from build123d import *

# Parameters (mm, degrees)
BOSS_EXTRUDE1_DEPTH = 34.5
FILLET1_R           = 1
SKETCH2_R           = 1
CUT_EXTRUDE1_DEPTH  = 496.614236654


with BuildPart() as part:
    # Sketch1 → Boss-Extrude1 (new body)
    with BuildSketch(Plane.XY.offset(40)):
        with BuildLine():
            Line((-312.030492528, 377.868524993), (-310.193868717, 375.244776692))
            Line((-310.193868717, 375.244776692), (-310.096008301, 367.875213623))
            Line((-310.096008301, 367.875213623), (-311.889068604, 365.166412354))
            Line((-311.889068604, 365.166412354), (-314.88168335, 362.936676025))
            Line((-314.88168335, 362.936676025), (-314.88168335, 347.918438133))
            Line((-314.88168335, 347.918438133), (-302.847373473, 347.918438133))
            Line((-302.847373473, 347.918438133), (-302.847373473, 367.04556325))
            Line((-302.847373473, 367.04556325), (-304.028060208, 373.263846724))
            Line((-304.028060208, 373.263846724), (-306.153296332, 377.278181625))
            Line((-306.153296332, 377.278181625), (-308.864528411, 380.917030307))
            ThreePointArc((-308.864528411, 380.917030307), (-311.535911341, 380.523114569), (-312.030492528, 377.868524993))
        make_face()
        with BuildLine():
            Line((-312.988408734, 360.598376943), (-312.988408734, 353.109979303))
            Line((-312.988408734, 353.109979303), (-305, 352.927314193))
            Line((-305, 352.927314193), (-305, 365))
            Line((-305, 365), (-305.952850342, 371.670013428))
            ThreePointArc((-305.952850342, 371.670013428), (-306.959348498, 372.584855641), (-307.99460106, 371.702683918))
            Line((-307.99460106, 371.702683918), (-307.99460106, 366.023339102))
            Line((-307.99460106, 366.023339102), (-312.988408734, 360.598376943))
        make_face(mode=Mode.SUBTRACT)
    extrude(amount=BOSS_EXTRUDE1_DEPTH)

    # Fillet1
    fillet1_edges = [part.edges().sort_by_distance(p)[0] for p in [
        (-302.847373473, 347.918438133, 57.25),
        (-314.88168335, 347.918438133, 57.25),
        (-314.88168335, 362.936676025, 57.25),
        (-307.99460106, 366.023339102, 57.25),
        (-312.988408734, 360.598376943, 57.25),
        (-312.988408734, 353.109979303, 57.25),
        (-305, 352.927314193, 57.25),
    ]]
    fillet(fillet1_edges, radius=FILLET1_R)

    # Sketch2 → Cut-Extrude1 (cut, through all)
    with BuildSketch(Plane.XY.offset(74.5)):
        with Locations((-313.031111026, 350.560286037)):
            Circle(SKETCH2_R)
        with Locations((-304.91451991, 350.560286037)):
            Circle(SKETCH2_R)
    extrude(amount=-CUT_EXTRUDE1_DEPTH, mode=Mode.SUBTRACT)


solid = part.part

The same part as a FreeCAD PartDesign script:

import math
import FreeCAD as App
import Part
import Sketcher

V = App.Vector
Q = App.Units.Quantity


def edges_at(feature, points):
    """Names of the edges that pass closest to the given points."""
    edges = feature.Shape.Edges
    near = lambda p: min(range(len(edges)), key=lambda i: edges[i].distToShape(Part.Vertex(*p))[0])
    return sorted({f"Edge{near(p) + 1}" for p in points})

doc = App.newDocument("Part")
body = doc.addObject("PartDesign::Body", "Body")

sketch1 = body.newObject("Sketcher::SketchObject", "Sketch")
sketch1.AttachmentSupport = (doc.getObject("XY_Plane"), [""])
sketch1.MapMode = "FlatFace"
sketch1.AttachmentOffset = App.Placement(V(0, 0, 40), App.Rotation())
sketch1.addGeometry(Part.LineSegment(V(-312.030493, 377.868525, 0), V(-310.193869, 375.244777, 0)), False)
sketch1.addGeometry(Part.LineSegment(V(-310.193869, 375.244777, 0), V(-310.096008, 367.875214, 0)), False)
sketch1.addGeometry(Part.LineSegment(V(-310.096008, 367.875214, 0), V(-311.889069, 365.166412, 0)), False)
sketch1.addGeometry(Part.LineSegment(V(-311.889069, 365.166412, 0), V(-314.881683, 362.936676, 0)), False)
sketch1.addGeometry(Part.LineSegment(V(-314.881683, 362.936676, 0), V(-314.881683, 347.918438, 0)), False)
sketch1.addGeometry(Part.LineSegment(V(-314.881683, 347.918438, 0), V(-302.847373, 347.918438, 0)), False)
sketch1.addGeometry(Part.LineSegment(V(-302.847373, 347.918438, 0), V(-302.847373, 367.045563, 0)), False)
sketch1.addGeometry(Part.LineSegment(V(-302.847373, 367.045563, 0), V(-304.02806, 373.263847, 0)), False)
sketch1.addGeometry(Part.LineSegment(V(-304.02806, 373.263847, 0), V(-306.153296, 377.278182, 0)), False)
sketch1.addGeometry(Part.LineSegment(V(-306.153296, 377.278182, 0), V(-308.864528, 380.91703, 0)), False)
sketch1.addGeometry(Part.ArcOfCircle(Part.Circle(V(-309.92439, 378.849501, 0), V(0, 0, 1), 2.323356), math.radians(62.85931), math.radians(204.975069)), False)
sketch1.addGeometry(Part.LineSegment(V(-312.988409, 353.109979, 0), V(-312.988409, 360.598377, 0)), False)
sketch1.addGeometry(Part.LineSegment(V(-312.988409, 360.598377, 0), V(-307.994601, 366.023339, 0)), False)
sketch1.addGeometry(Part.LineSegment(V(-307.994601, 366.023339, 0), V(-307.994601, 371.702684, 0)), False)
sketch1.addGeometry(Part.ArcOfCircle(Part.Circle(V(-306.975817, 371.555648, 0), V(0, 0, 1), 1.02934), math.radians(6.379078), math.radians(171.787475)), False)
sketch1.addGeometry(Part.LineSegment(V(-305.95285, 371.670013, 0), V(-305, 365, 0)), False)
sketch1.addGeometry(Part.LineSegment(V(-305, 365, 0), V(-305, 352.927314, 0)), False)
sketch1.addGeometry(Part.LineSegment(V(-305, 352.927314, 0), V(-312.988409, 353.109979, 0)), False)
sketch1.addConstraint(Sketcher.Constraint("Coincident", 0, 2, 1, 1))
sketch1.addConstraint(Sketcher.Constraint("Coincident", 1, 2, 2, 1))
sketch1.addConstraint(Sketcher.Constraint("Coincident", 2, 2, 3, 1))
sketch1.addConstraint(Sketcher.Constraint("Coincident", 3, 2, 4, 1))
sketch1.addConstraint(Sketcher.Constraint("Coincident", 4, 2, 5, 1))
sketch1.addConstraint(Sketcher.Constraint("Coincident", 5, 2, 6, 1))
sketch1.addConstraint(Sketcher.Constraint("Coincident", 6, 2, 7, 1))
sketch1.addConstraint(Sketcher.Constraint("Coincident", 7, 2, 8, 1))
sketch1.addConstraint(Sketcher.Constraint("Coincident", 8, 2, 9, 1))
sketch1.addConstraint(Sketcher.Constraint("Coincident", 9, 2, 10, 1))
sketch1.addConstraint(Sketcher.Constraint("Coincident", 10, 2, 0, 1))
sketch1.addConstraint(Sketcher.Constraint("Coincident", 11, 2, 12, 1))
sketch1.addConstraint(Sketcher.Constraint("Coincident", 12, 2, 13, 1))
sketch1.addConstraint(Sketcher.Constraint("Coincident", 13, 2, 14, 2))
sketch1.addConstraint(Sketcher.Constraint("Coincident", 14, 1, 15, 1))
sketch1.addConstraint(Sketcher.Constraint("Coincident", 15, 2, 16, 1))
sketch1.addConstraint(Sketcher.Constraint("Coincident", 16, 2, 17, 1))
sketch1.addConstraint(Sketcher.Constraint("Coincident", 17, 2, 11, 1))
sketch1.addConstraint(Sketcher.Constraint("Vertical", 4))
sketch1.addConstraint(Sketcher.Constraint("Horizontal", 5))
sketch1.addConstraint(Sketcher.Constraint("Vertical", 6))
sketch1.addConstraint(Sketcher.Constraint("Vertical", 11))
sketch1.addConstraint(Sketcher.Constraint("Vertical", 13))
sketch1.addConstraint(Sketcher.Constraint("Vertical", 16))
sketch1.addConstraint(Sketcher.Constraint("Perpendicular", 3, 9))
sketch1.addConstraint(Sketcher.Constraint("DistanceX", 15, 2, -1, 1, Q("305 mm")))
sketch1.addConstraint(Sketcher.Constraint("DistanceY", -1, 1, 15, 2, Q("365 mm")))
sketch1.addConstraint(Sketcher.Constraint("Radius", 14, Q("1.02934 mm")))
sketch1.addConstraint(Sketcher.Constraint("Radius", 10, Q("2.323356 mm")))
sketch1.addConstraint(Sketcher.Constraint("DistanceX", 5, 1, 5, 2, Q("12.03431 mm")))
sketch1.addConstraint(Sketcher.Constraint("DistanceY", -1, 1, 10, 3, Q("378.849501 mm")))
sketch1.addConstraint(Sketcher.Constraint("DistanceX", 12, 2, -1, 1, Q("307.994601 mm")))
sketch1.addConstraint(Sketcher.Constraint("DistanceY", 2, 2, 1, 2, Q("2.708801 mm")))
sketch1.addConstraint(Sketcher.Constraint("DistanceX", 2, 2, 0, 2, Q("1.6952 mm")))
sketch1.addConstraint(Sketcher.Constraint("DistanceY", 3, 2, 0, 2, Q("12.308101 mm")))
sketch1.addConstraint(Sketcher.Constraint("DistanceY", 14, 3, 7, 2, Q("1.708199 mm")))
sketch1.addConstraint(Sketcher.Constraint("DistanceY", 11, 2, 3, 2, Q("2.338299 mm")))
sketch1.addConstraint(Sketcher.Constraint("DistanceX", 11, 2, 1, 2, Q("2.8924 mm")))
sketch1.addConstraint(Sketcher.Constraint("Distance", 7, Q("6.329382 mm")))
sketch1.addConstraint(Sketcher.Constraint("Distance", 9, Q("4.537841 mm")))
sketch1.addConstraint(Sketcher.Constraint("Distance", 12, Q("7.373488 mm")))
sketch1.addConstraint(Sketcher.Constraint("Distance", 15, Q("6.73773 mm")))
sketch1.addConstraint(Sketcher.Constraint("DistanceY", 4, 2, 4, 1, Q("15.018238 mm")))
sketch1.addConstraint(Sketcher.Constraint("DistanceY", 6, 1, 6, 2, Q("19.127125 mm")))
sketch1.addConstraint(Sketcher.Constraint("DistanceY", 11, 1, 11, 2, Q("7.488398 mm")))
sketch1.addConstraint(Sketcher.Constraint("DistanceY", 13, 1, 13, 2, Q("5.679345 mm")))
sketch1.addConstraint(Sketcher.Constraint("DistanceY", 16, 2, 16, 1, Q("12.072686 mm")))
sketch1.addConstraint(Sketcher.Constraint("DistanceX", 10, 3, -1, 1, Q("309.92439 mm")))
sketch1.addConstraint(Sketcher.Constraint("DistanceX", 0, 2, -1, 1, Q("310.193869 mm")))
sketch1.addConstraint(Sketcher.Constraint("DistanceX", 1, 2, -1, 1, Q("310.096008 mm")))
sketch1.addConstraint(Sketcher.Constraint("DistanceY", -1, 1, 4, 2, Q("347.918438 mm")))
sketch1.addConstraint(Sketcher.Constraint("DistanceX", 7, 2, -1, 1, Q("304.02806 mm")))
sketch1.addConstraint(Sketcher.Constraint("DistanceY", -1, 1, 8, 2, Q("377.278182 mm")))
sketch1.addConstraint(Sketcher.Constraint("DistanceX", 9, 2, -1, 1, Q("308.864528 mm")))
sketch1.addConstraint(Sketcher.Constraint("DistanceX", 14, 1, -1, 1, Q("305.95285 mm")))
sketch1.addConstraint(Sketcher.Constraint("DistanceY", 0, 2, 10, 2, Q("2.623748 mm")))
pad1 = body.newObject("PartDesign::Pad", "Pad")
pad1.Profile = sketch1
pad1.Length = 34.5
doc.recompute()

fillet = body.newObject("PartDesign::Fillet", "Fillet")
fillet.Base = (pad1, edges_at(pad1, [
    (-302.847, 347.918, 57.25),
    (-314.882, 347.918, 57.25),
    (-314.882, 362.937, 57.25),
    (-307.995, 366.023, 57.25),
    (-312.988, 360.598, 57.25),
    (-312.988, 353.11, 57.25),
    (-305, 352.927, 57.25),
]))
fillet.Radius = 1

sketch2 = body.newObject("Sketcher::SketchObject", "Sketch001")
sketch2.AttachmentSupport = (doc.getObject("XY_Plane"), [""])
sketch2.MapMode = "FlatFace"
sketch2.AttachmentOffset = App.Placement(V(0, 0, 74.5), App.Rotation())
sketch2.addGeometry(Part.Circle(V(-313.031111, 350.560286, 0), V(0, 0, 1), 1), False)
sketch2.addGeometry(Part.Circle(V(-304.91452, 350.560286, 0), V(0, 0, 1), 1), False)
sketch2.addConstraint(Sketcher.Constraint("Equal", 0, 1))
sketch2.addConstraint(Sketcher.Constraint("Horizontal", 0, 3, 1, 3))
sketch2.addConstraint(Sketcher.Constraint("Diameter", 0, Q("2 mm")))
sketch2.addConstraint(Sketcher.Constraint("DistanceX", 0, 3, -1, 1, Q("313.031111 mm")))
sketch2.addConstraint(Sketcher.Constraint("DistanceX", 1, 3, -1, 1, Q("304.91452 mm")))
sketch2.addConstraint(Sketcher.Constraint("DistanceY", -1, 1, 0, 3, Q("350.560286 mm")))
pocket1 = body.newObject("PartDesign::Pocket", "Pocket")
pocket1.Profile = sketch2
pocket1.Type = "ThroughAll"

doc.recompute()
